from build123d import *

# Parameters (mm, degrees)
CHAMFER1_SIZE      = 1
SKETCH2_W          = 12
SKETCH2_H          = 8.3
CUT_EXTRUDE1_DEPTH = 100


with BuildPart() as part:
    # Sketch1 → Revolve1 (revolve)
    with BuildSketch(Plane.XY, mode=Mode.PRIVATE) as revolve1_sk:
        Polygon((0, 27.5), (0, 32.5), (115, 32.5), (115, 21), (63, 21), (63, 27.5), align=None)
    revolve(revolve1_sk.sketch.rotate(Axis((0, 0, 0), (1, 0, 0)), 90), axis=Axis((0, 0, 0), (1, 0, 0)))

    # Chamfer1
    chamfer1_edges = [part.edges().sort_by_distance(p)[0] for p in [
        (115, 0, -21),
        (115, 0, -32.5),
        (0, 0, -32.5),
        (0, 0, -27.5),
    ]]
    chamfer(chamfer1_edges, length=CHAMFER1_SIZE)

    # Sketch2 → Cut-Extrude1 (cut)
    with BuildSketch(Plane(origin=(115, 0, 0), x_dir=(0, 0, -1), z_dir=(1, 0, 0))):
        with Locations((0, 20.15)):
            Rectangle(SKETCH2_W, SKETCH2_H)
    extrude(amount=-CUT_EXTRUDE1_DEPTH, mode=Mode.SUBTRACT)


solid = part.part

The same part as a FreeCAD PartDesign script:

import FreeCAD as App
import Part
import Sketcher
from FreeCAD import Vector


def edges_at(feature, points):
    """Names of the edges that pass closest to the given points."""
    edges = feature.Shape.Edges
    near = lambda p: min(range(len(edges)), key=lambda i: edges[i].distToShape(Part.Vertex(*p))[0])
    return sorted({f"Edge{near(p) + 1}" for p in points})

doc = App.newDocument("Part")
params = doc.addObject("Spreadsheet::Sheet", "Params")
for row, (alias, value) in enumerate([
    ("sketch1_width", "63 mm"),
    ("sketch1_width2", "52 mm"),
    ("sketch1_height", "5 mm"),
    ("sketch1_height2", "6.5 mm"),
    ("revolution_angle", "360 deg"),
    ("chamfer_size", "1 mm"),
    ("sketch2_height", "12 mm"),
    ("sketch2_width", "8.3 mm"),
    ("pocket1_length", "100 mm"),
], start=1):
    params.set(f"A{row}", alias)
    params.set(f"B{row}", "=" + value)
    params.setAlias(f"B{row}", alias)

body = doc.addObject("PartDesign::Body", "Body")

# Sketch on XY plane
sketch1 = body.newObject("Sketcher::SketchObject", "Sketch")
sketch1.AttachmentSupport = (doc.getObject("XY_Plane"), [""])
sketch1.MapMode = "FlatFace"
sketch1.addGeometry([
    Part.LineSegment(Vector(0, 32, 0), Vector(0, 28, 0)),  # 0
    Part.LineSegment(Vector(0, 28, 0), Vector(63, 28, 0)),  # 1
    Part.LineSegment(Vector(63, 28, 0), Vector(63, 21, 0)),  # 2
    Part.LineSegment(Vector(63, 21, 0), Vector(115, 21, 0)),  # 3
    Part.LineSegment(Vector(115, 21, 0), Vector(115, 32, 0)),  # 4
    Part.LineSegment(Vector(115, 32, 0), Vector(0, 32, 0)),  # 5
], False)
sketch1.addConstraint([
    Sketcher.Constraint("Coincident", 0, 2, 1, 1),
    Sketcher.Constraint("Coincident", 1, 2, 2, 1),
    Sketcher.Constraint("Coincident", 2, 2, 3, 1),
    Sketcher.Constraint("Coincident", 3, 2, 4, 1),
    Sketcher.Constraint("Coincident", 4, 2, 5, 1),
    Sketcher.Constraint("Coincident", 5, 2, 0, 1),
    Sketcher.Constraint("Vertical", 0),
    Sketcher.Constraint("Horizontal", 1),
    Sketcher.Constraint("Vertical", 2),
    Sketcher.Constraint("Horizontal", 3),
    Sketcher.Constraint("Vertical", 4),
    Sketcher.Constraint("Horizontal", 5),
    Sketcher.Constraint("PointOnObject", 0, 2, -2),
    Sketcher.Constraint("DistanceX", 1, 1, 1, 2, 63.0),
    Sketcher.Constraint("DistanceX", 3, 1, 3, 2, 52.0),
    Sketcher.Constraint("DistanceY", 0, 2, 0, 1, 5.0),
    Sketcher.Constraint("DistanceY", 2, 2, 2, 1, 6.5),
    Sketcher.Constraint("DistanceY", -1, 1, 2, 2, 21.0),
])
sketch1.setExpression("Constraints[13]", "Params.sketch1_width")
sketch1.setExpression("Constraints[14]", "Params.sketch1_width2")
sketch1.setExpression("Constraints[15]", "Params.sketch1_height")
sketch1.setExpression("Constraints[16]", "Params.sketch1_height2")
revolution = body.newObject("PartDesign::Revolution", "Revolution")
revolution.Profile = sketch1
revolution.ReferenceAxis = (sketch1, ["H_Axis"])
revolution.setExpression("Angle", "Params.revolution_angle")
doc.recompute()

chamfer = body.newObject("PartDesign::Chamfer", "Chamfer")
chamfer.Base = (revolution, edges_at(revolution, [
    (115, 0, -21),
    (115, 0, -32.5),
    (0, 0, -32.5),
    (0, 0, -27.5),
]))
chamfer.setExpression("Size", "Params.chamfer_size")

# Sketch on YZ plane
sketch2 = body.newObject("Sketcher::SketchObject", "Sketch001")
sketch2.AttachmentSupport = (doc.getObject("YZ_Plane"), [""])
sketch2.MapMode = "FlatFace"
sketch2.AttachmentOffset = App.Placement(Vector(0, 0, 115), App.Rotation())
sketch2.addGeometry([
    Part.LineSegment(Vector(24, 6, 0), Vector(16, 6, 0)),
    Part.LineSegment(Vector(16, 6, 0), Vector(16, -6, 0)),
    Part.LineSegment(Vector(16, -6, 0), Vector(24, -6, 0)),
    Part.LineSegment(Vector(24, -6, 0), Vector(24, 6, 0)),
], False)
sketch2.addConstraint([
    Sketcher.Constraint("Coincident", 0, 2, 1, 1),
    Sketcher.Constraint("Coincident", 1, 2, 2, 1),
    Sketcher.Constraint("Coincident", 2, 2, 3, 1),
    Sketcher.Constraint("Coincident", 3, 2, 0, 1),
    Sketcher.Constraint("Horizontal", 0),
    Sketcher.Constraint("Vertical", 1),
    Sketcher.Constraint("Horizontal", 2),
    Sketcher.Constraint("Vertical", 3),
    Sketcher.Constraint("DistanceY", 1, 2, 1, 1, 12.0),
    Sketcher.Constraint("DistanceX", 0, 2, 0, 1, 8.3),
    Sketcher.Constraint("DistanceX", -1, 1, 0, 2, 16.0),
    Sketcher.Constraint("DistanceY", -1, 1, 0, 2, 6.0),
])
sketch2.setExpression("Constraints[8]", "Params.sketch2_height")
sketch2.setExpression("Constraints[9]", "Params.sketch2_width")
pocket1 = body.newObject("PartDesign::Pocket", "Pocket")
pocket1.Profile = sketch2
pocket1.setExpression("Length", "Params.pocket1_length")

doc.recompute()
